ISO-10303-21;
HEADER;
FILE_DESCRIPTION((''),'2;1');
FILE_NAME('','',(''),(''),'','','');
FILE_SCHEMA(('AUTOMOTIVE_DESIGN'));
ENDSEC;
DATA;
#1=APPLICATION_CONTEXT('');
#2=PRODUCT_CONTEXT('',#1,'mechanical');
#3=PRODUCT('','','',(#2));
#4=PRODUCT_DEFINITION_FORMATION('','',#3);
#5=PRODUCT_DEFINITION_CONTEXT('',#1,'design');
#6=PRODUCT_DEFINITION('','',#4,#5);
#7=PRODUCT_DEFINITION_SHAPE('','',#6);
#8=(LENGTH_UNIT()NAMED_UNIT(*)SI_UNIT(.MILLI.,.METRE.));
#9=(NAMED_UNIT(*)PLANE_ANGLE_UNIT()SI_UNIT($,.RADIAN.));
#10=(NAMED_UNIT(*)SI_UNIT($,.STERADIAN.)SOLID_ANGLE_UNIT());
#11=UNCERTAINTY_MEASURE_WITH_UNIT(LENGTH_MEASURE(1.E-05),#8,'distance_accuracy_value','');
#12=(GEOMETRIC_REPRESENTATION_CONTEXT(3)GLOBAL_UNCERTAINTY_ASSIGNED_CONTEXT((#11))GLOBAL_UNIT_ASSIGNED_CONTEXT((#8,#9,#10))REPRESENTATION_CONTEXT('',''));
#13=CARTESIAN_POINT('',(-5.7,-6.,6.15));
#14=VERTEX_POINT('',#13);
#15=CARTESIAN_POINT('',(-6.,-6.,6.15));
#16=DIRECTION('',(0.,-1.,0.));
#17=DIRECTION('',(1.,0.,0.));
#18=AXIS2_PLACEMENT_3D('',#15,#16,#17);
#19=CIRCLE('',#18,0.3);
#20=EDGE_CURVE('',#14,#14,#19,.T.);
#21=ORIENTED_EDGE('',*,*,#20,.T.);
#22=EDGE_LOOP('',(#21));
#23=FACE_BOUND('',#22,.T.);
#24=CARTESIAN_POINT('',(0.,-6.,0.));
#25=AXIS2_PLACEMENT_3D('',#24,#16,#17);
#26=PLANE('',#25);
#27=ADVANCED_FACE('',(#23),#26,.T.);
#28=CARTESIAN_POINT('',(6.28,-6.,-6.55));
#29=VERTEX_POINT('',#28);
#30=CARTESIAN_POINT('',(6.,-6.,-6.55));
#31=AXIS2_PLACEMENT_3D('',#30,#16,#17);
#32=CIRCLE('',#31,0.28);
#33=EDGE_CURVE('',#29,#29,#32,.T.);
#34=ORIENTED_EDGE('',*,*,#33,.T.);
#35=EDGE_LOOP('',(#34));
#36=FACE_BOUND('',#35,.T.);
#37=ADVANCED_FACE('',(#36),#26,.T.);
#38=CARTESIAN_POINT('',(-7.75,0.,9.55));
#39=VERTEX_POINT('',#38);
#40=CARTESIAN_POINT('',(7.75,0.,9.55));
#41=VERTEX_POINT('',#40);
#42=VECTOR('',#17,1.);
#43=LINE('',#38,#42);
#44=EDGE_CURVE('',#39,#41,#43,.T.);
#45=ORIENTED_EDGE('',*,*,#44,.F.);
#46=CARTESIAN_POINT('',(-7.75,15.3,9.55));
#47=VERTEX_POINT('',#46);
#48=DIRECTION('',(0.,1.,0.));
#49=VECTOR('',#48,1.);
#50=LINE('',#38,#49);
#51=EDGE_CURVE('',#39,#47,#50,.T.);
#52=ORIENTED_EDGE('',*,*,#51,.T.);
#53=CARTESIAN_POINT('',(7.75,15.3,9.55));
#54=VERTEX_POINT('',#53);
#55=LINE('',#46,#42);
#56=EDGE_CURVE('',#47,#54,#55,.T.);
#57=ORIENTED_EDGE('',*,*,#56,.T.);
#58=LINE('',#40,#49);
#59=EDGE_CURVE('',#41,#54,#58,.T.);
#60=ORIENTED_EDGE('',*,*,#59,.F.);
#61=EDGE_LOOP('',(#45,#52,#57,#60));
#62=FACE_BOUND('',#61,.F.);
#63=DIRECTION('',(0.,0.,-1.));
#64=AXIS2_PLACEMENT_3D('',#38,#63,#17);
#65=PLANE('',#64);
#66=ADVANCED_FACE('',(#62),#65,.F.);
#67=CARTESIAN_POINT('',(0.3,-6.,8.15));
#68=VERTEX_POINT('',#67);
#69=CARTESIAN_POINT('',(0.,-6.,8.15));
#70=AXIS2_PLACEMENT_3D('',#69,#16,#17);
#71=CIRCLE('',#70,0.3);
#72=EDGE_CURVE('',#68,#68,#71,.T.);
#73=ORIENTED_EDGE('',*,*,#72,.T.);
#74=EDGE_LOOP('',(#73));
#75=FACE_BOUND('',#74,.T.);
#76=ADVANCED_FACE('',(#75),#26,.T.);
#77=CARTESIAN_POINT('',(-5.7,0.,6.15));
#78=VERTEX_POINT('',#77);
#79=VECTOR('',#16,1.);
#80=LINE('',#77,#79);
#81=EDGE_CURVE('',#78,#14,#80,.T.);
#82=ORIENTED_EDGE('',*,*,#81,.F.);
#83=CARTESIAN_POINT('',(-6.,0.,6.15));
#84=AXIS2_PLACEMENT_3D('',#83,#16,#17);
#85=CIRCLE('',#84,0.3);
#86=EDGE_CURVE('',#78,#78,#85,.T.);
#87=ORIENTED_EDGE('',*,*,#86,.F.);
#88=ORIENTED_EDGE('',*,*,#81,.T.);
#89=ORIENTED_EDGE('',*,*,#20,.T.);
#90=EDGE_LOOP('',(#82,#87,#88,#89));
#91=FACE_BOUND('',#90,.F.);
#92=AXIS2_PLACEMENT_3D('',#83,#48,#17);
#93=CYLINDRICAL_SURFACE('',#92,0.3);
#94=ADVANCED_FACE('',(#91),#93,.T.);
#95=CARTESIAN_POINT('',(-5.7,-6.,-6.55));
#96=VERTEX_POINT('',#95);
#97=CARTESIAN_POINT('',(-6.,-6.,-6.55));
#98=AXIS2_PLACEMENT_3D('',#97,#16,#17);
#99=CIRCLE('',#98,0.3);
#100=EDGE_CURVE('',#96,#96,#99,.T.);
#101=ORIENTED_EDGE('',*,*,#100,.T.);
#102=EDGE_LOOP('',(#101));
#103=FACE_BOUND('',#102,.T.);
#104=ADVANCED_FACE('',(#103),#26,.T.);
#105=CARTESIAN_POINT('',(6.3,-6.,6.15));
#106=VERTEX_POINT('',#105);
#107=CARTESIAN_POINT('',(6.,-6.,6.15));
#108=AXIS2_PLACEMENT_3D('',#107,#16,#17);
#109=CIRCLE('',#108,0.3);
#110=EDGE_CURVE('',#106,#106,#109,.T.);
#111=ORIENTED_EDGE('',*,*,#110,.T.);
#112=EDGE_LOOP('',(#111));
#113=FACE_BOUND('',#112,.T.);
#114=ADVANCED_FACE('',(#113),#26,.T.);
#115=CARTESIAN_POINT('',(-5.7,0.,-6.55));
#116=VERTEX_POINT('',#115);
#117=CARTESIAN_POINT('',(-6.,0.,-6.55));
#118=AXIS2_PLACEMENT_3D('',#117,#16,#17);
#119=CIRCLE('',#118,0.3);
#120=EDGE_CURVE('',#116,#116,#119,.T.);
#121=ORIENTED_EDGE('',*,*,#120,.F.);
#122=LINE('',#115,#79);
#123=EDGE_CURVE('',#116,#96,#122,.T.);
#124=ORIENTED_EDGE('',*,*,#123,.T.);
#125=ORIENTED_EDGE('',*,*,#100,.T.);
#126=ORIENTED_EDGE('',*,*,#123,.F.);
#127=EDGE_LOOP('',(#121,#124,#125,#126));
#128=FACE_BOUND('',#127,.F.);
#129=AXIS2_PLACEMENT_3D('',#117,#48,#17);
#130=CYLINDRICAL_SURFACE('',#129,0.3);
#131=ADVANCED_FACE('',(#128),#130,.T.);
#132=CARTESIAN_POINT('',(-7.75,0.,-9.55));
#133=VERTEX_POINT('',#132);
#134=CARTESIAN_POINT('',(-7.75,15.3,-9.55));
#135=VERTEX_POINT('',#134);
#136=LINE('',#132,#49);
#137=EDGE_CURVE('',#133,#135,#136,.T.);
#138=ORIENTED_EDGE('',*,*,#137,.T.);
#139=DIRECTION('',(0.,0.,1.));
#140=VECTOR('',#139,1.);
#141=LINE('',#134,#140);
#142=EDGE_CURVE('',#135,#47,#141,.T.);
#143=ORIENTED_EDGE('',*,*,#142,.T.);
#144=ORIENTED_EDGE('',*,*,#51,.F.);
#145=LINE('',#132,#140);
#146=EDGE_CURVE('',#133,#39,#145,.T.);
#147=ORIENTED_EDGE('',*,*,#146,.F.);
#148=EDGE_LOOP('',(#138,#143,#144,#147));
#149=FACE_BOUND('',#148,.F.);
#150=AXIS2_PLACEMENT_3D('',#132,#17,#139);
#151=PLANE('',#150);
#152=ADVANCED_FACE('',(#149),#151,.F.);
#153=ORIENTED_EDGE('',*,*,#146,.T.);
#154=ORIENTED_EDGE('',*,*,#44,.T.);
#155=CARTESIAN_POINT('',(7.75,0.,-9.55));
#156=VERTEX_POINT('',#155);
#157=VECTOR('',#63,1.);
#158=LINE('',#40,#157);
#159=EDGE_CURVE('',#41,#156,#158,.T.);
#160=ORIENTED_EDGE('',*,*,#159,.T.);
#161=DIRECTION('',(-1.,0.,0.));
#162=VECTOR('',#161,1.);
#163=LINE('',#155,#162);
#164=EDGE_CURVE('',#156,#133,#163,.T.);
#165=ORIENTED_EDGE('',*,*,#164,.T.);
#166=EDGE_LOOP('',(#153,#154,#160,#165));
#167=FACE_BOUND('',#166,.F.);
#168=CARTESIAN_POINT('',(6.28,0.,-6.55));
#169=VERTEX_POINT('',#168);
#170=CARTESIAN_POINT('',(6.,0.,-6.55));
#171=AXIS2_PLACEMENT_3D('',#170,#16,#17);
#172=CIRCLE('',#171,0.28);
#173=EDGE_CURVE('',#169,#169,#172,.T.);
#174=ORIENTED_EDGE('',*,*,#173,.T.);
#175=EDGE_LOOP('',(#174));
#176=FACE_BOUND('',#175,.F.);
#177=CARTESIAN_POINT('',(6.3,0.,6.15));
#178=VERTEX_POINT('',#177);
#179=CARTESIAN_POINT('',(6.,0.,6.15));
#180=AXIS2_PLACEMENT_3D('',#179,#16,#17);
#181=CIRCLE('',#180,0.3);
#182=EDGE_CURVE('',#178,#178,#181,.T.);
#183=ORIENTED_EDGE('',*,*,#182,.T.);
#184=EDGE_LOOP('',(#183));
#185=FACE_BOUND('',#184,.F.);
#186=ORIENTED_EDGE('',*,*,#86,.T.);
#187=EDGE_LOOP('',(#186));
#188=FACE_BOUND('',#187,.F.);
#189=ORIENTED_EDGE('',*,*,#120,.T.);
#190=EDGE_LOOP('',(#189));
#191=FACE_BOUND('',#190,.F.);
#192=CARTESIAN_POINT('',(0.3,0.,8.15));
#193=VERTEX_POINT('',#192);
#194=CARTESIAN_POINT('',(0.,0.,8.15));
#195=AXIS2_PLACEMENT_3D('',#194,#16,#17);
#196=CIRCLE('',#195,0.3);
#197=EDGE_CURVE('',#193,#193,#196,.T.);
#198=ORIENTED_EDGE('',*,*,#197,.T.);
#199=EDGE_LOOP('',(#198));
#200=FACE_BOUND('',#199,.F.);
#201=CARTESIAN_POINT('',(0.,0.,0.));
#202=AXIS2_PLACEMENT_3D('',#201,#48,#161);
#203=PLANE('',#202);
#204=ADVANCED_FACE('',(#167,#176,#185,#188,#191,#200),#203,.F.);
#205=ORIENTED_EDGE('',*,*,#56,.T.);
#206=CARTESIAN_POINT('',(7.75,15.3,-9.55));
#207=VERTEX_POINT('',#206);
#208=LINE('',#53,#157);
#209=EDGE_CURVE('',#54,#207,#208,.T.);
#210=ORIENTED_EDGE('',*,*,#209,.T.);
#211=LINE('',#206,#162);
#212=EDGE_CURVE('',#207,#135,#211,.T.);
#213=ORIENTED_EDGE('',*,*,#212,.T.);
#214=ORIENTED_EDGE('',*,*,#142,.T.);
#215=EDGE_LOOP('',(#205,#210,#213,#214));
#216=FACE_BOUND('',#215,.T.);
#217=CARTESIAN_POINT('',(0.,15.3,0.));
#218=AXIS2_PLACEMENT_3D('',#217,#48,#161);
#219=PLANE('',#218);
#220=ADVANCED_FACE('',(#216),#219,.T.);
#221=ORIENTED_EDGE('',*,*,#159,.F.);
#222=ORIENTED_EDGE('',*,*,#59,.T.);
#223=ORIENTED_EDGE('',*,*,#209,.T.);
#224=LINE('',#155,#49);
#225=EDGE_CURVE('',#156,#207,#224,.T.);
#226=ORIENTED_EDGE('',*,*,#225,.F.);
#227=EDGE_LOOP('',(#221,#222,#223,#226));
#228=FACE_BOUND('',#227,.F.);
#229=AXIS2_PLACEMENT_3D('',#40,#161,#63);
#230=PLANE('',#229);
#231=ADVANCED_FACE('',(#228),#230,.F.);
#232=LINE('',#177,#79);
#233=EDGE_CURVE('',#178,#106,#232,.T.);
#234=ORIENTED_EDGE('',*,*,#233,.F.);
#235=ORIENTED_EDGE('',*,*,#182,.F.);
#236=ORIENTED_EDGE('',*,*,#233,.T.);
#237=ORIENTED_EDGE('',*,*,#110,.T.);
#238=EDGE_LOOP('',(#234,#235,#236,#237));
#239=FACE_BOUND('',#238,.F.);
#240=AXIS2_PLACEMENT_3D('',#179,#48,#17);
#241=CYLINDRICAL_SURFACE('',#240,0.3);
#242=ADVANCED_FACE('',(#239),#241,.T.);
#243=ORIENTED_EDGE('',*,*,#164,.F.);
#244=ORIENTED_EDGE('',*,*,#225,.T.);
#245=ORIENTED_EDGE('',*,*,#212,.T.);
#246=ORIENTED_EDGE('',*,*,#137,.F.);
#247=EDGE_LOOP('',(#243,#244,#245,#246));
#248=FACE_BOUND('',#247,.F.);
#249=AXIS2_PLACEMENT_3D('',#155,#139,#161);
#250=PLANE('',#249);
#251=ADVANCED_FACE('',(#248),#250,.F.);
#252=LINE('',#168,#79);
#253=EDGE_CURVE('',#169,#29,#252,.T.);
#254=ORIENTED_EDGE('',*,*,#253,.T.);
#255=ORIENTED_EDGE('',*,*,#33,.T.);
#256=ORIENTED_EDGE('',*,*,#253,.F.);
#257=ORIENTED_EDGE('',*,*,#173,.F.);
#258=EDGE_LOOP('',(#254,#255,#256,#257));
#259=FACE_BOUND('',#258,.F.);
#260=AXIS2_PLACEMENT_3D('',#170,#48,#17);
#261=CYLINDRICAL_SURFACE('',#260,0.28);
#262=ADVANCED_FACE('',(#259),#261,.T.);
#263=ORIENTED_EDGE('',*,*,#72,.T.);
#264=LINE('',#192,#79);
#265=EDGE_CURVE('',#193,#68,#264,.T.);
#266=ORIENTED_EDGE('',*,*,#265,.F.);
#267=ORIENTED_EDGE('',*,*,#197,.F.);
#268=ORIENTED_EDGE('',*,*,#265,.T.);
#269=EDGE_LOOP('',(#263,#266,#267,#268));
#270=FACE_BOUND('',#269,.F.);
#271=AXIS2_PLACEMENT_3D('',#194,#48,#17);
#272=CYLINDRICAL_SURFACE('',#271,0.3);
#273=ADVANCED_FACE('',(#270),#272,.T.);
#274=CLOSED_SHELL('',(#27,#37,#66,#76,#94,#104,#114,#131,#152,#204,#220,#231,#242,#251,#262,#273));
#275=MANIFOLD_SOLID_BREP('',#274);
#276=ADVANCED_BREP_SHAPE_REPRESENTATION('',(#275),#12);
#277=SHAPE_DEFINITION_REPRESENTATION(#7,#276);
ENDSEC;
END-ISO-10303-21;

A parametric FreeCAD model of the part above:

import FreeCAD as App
import Part
import Sketcher

V = App.Vector
Q = App.Units.Quantity


def add_polygon(sketch, points):
    """Adds a closed chain of lines whose ends are joined by coincident constraints."""
    first, n = sketch.GeometryCount, len(points)
    for a, b in zip(points, points[1:] + points[:1]):
        sketch.addGeometry(Part.LineSegment(App.Vector(*a, 0), App.Vector(*b, 0)), False)
    for i in range(n):
        sketch.addConstraint(Sketcher.Constraint("Coincident", first + i, 2, first + (i + 1) % n, 1))

doc = App.newDocument("Part")
body = doc.addObject("PartDesign::Body", "Body")

# Sketch on XZ plane
sketch1 = body.newObject("Sketcher::SketchObject", "Sketch")
sketch1.AttachmentSupport = (doc.getObject("XZ_Plane"), [""])
sketch1.MapMode = "FlatFace"
add_polygon(sketch1, [(-8, -10), (-8, 10), (8, 10), (8, -10)])  # lines 0-3
sketch1.addConstraint(Sketcher.Constraint("Vertical", 0))
sketch1.addConstraint(Sketcher.Constraint("Horizontal", 1))
sketch1.addConstraint(Sketcher.Constraint("Vertical", 2))
sketch1.addConstraint(Sketcher.Constraint("Horizontal", 3))
sketch1.addConstraint(Sketcher.Constraint("Symmetric", 0, 2, 2, 2, -1, 1))
sketch1.addConstraint(Sketcher.Constraint("DistanceX", 1, 1, 1, 2, Q("15.5 mm")))
sketch1.addConstraint(Sketcher.Constraint("DistanceY", 0, 1, 0, 2, Q("19.1 mm")))
pad1 = body.newObject("PartDesign::Pad", "Pad")
pad1.Profile = sketch1
pad1.Length = 15.3
pad1.Reversed = True

# Sketch on XZ plane
sketch2 = body.newObject("Sketcher::SketchObject", "Sketch001")
sketch2.AttachmentSupport = (doc.getObject("XZ_Plane"), [""])
sketch2.MapMode = "FlatFace"
sketch2.addGeometry(Part.Circle(V(-6, 6.15, 0), V(0, 0, 1), 0.3), False)
sketch2.addGeometry(Part.Circle(V(6, 6.15, 0), V(0, 0, 1), 0.3), False)
sketch2.addGeometry(Part.Circle(V(0, 8.15, 0), V(0, 0, 1), 0.3), False)
sketch2.addGeometry(Part.Circle(V(-6, -6.55, 0), V(0, 0, 1), 0.3), False)
sketch2.addGeometry(Part.Circle(V(6, -6.55, 0), V(0, 0, 1), 0.28), False)
sketch2.addConstraint(Sketcher.Constraint("Equal", 0, 1))
sketch2.addConstraint(Sketcher.Constraint("Equal", 1, 2))
sketch2.addConstraint(Sketcher.Constraint("Equal", 2, 3))
sketch2.addConstraint(Sketcher.Constraint("Symmetric", 0, 3, 1, 3, -2))
sketch2.addConstraint(Sketcher.Constraint("Symmetric", 3, 3, 4, 3, -2))
sketch2.addConstraint(Sketcher.Constraint("PointOnObject", 2, 3, -2))
sketch2.addConstraint(Sketcher.Constraint("Vertical", 0, 3, 3, 3))
sketch2.addConstraint(Sketcher.Constraint("Diameter", 0, Q("0.6 mm")))
sketch2.addConstraint(Sketcher.Constraint("Diameter", 4, Q("0.56 mm")))
sketch2.addConstraint(Sketcher.Constraint("DistanceX", 0, 3, -1, 1, Q("6 mm")))
sketch2.addConstraint(Sketcher.Constraint("DistanceY", 0, 3, 2, 3, Q("2 mm")))
sketch2.addConstraint(Sketcher.Constraint("DistanceY", 3, 3, 0, 3, Q("12.7 mm")))
sketch2.addConstraint(Sketcher.Constraint("DistanceY", -1, 1, 0, 3, Q("6.15 mm")))
pad2 = body.newObject("PartDesign::Pad", "Pad001")
pad2.Profile = sketch2
pad2.Length = 6

doc.recompute()
